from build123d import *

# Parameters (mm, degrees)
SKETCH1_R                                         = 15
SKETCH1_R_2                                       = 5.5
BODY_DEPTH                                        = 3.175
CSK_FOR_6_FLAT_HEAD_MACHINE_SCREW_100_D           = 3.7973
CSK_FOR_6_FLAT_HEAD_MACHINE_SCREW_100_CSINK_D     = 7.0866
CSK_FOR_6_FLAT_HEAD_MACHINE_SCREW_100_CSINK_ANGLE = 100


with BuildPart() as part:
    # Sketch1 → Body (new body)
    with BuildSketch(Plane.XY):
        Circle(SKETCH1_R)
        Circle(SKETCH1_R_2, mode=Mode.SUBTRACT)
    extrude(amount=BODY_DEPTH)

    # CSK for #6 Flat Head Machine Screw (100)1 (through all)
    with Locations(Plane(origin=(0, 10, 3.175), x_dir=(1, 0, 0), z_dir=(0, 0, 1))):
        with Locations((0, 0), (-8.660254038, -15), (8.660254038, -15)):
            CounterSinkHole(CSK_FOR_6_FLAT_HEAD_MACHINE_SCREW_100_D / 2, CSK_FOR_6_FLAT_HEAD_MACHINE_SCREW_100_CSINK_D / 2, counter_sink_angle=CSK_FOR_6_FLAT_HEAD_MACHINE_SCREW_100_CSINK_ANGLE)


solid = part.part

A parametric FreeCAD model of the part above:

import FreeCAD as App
import Part
import Sketcher

doc = App.newDocument("Part")
body = doc.addObject("PartDesign::Body", "Body")

# Sketch on XY plane
sketch1 = body.newObject("Sketcher::SketchObject", "Sketch")
sketch1.AttachmentSupport = (doc.getObject("XY_Plane"), [""])
sketch1.MapMode = "FlatFace"
sketch1.addGeometry([
    Part.Circle(App.Vector(0, 0, 0), App.Vector(0, 0, 1), 15),
    Part.Circle(App.Vector(0, 0, 0), App.Vector(0, 0, 1), 6),
], False)
sketch1.addConstraint([
    Sketcher.Constraint("Coincident", 0, 3, -1, 1),
    Sketcher.Constraint("Coincident", 1, 3, -1, 1),
    Sketcher.Constraint("Diameter", 0, 30.0),
    Sketcher.Constraint("Diameter", 1, 11.0),
])
pad1 = body.newObject("PartDesign::Pad", "Pad")
pad1.Profile = sketch1
pad1.Length = 3.175

# Sketch on XY plane
sketch2 = body.newObject("Sketcher::SketchObject", "Sketch001")
sketch2.AttachmentSupport = (doc.getObject("XY_Plane"), [""])
sketch2.MapMode = "FlatFace"
sketch2.AttachmentOffset = App.Placement(App.Vector(0, 0, 3.175), App.Rotation())
sketch2.addGeometry([
    Part.Circle(App.Vector(0, 10, 0), App.Vector(0, 0, 1), 1.9),
    Part.Circle(App.Vector(-8.7, -5, 0), App.Vector(0, 0, 1), 1.9),
    Part.Circle(App.Vector(8.7, -5, 0), App.Vector(0, 0, 1), 1.9),
], False)
sketch2.addConstraint([
    Sketcher.Constraint("Equal", 0, 1),
    Sketcher.Constraint("Equal", 1, 2),
    Sketcher.Constraint("Symmetric", 1, 3, 2, 3, -2),
    Sketcher.Constraint("PointOnObject", 0, 3, -2),
    Sketcher.Constraint("DistanceY", -1, 1, 0, 3, 10.0),
    Sketcher.Constraint("DistanceY", 1, 3, -1, 1, 5.0),
    Sketcher.Constraint("Diameter", 0, 3.7973),
    Sketcher.Constraint("DistanceX", 1, 3, 2, 3, 17.320508),
])
doc.recompute()
hole = body.newObject("PartDesign::Hole", "Hole")
hole.Profile = sketch2
hole.ThreadType = "None"
hole.Diameter = 3.7973
hole.DepthType = "ThroughAll"
hole.HoleCutType = "Countersink"
hole.HoleCutDiameter = 7.0866
hole.HoleCutCountersinkAngle = 100

doc.recompute()
